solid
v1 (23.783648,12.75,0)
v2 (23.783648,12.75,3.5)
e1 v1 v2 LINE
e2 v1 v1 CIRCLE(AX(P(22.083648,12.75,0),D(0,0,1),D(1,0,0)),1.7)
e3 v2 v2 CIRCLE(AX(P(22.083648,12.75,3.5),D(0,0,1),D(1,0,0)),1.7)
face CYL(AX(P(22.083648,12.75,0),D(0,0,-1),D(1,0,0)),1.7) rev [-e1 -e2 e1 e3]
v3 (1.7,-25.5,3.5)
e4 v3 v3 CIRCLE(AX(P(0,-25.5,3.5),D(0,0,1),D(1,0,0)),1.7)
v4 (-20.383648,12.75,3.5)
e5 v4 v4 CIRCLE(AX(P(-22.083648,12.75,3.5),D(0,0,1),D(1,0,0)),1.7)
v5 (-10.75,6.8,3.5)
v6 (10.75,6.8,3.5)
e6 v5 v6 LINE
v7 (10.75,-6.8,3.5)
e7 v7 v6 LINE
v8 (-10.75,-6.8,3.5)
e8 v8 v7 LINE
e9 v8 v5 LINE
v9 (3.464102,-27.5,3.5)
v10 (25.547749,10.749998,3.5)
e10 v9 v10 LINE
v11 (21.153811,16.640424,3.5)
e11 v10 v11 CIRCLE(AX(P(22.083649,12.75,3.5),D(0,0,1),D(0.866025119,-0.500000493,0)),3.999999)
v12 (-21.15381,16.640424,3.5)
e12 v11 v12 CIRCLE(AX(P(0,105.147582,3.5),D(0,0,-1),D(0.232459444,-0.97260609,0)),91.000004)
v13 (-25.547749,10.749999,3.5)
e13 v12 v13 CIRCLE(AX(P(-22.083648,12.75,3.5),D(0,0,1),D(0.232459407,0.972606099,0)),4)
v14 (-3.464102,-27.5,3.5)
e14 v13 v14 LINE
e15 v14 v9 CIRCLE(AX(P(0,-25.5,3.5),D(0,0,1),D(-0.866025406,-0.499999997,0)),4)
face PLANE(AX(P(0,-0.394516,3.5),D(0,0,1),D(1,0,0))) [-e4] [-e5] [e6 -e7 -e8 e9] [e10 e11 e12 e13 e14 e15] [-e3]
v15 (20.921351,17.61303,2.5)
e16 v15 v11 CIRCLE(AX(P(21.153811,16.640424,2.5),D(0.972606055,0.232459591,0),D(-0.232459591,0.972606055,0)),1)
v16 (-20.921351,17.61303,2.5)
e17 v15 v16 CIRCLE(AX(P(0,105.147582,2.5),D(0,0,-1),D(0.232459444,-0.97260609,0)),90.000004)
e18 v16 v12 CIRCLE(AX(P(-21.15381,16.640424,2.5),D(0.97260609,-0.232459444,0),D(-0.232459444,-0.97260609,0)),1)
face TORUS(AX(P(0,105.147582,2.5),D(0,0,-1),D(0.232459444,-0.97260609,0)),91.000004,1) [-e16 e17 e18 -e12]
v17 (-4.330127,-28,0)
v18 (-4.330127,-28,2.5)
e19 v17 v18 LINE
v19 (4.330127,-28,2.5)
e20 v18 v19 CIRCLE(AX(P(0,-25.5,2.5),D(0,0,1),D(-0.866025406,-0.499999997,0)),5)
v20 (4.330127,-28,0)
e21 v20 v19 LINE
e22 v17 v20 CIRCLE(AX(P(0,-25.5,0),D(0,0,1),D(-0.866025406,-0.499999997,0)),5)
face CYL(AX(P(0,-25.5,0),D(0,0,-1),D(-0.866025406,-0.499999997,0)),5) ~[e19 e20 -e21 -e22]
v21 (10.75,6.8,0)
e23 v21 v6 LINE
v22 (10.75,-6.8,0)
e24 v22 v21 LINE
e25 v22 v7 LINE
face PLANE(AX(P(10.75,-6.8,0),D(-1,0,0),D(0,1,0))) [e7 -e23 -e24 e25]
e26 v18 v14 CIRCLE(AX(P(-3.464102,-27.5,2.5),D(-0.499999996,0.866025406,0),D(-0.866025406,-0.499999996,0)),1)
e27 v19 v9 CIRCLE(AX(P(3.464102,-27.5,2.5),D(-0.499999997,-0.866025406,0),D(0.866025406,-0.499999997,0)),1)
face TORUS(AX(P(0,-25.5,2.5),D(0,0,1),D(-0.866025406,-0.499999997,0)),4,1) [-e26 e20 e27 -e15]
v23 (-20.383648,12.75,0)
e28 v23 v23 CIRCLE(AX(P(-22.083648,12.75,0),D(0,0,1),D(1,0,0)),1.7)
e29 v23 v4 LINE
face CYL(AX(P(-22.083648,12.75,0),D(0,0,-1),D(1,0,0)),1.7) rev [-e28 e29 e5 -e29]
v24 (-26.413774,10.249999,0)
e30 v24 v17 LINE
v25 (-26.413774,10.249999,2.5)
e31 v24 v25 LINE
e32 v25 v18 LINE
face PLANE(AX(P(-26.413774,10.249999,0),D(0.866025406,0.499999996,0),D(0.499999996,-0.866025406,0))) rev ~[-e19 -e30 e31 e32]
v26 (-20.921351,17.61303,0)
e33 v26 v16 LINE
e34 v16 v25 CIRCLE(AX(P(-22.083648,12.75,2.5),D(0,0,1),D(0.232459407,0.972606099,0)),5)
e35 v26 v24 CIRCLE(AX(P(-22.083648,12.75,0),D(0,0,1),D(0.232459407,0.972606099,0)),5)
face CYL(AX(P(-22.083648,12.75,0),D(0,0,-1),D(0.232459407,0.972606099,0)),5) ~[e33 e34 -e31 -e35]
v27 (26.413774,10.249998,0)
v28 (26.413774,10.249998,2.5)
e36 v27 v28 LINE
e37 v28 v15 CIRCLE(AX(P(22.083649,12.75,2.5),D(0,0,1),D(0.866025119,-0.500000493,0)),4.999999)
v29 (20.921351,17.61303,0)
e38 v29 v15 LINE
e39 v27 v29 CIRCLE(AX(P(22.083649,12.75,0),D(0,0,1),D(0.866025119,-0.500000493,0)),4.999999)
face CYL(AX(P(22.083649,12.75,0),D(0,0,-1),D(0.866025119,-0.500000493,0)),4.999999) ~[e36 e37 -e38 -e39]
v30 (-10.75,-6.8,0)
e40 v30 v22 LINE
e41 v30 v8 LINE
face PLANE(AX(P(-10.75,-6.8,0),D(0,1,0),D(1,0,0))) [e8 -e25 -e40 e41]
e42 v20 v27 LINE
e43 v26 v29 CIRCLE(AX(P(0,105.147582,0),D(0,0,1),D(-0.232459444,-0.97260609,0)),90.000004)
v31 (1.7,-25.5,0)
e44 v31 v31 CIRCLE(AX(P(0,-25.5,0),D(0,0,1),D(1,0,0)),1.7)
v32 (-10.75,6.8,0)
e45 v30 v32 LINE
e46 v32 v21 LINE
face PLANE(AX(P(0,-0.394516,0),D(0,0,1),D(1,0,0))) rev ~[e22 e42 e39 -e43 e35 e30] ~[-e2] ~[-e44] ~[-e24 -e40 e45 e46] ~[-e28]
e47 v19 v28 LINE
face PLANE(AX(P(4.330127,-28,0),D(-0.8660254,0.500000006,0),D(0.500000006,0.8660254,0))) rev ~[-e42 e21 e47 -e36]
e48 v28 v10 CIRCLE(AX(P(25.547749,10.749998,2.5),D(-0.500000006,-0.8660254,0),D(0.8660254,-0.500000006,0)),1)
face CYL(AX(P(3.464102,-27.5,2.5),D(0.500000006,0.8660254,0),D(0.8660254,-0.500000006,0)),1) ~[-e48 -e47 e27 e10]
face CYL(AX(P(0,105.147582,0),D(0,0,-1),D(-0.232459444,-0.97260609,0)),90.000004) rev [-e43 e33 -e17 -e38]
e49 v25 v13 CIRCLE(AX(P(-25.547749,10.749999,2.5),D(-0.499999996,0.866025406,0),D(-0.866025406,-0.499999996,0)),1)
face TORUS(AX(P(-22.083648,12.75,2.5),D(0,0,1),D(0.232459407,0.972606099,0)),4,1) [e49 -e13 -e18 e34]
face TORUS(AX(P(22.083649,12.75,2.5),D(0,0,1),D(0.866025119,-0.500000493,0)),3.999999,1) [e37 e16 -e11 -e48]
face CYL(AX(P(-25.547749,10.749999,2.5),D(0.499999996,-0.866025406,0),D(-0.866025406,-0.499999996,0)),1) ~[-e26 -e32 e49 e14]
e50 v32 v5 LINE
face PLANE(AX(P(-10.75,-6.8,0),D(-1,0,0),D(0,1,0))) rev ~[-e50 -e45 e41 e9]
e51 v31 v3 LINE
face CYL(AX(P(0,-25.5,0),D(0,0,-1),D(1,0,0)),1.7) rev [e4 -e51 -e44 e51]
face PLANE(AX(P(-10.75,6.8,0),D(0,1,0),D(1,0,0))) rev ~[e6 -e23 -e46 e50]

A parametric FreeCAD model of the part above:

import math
import FreeCAD as App
import Part
import Sketcher

V = App.Vector
Q = App.Units.Quantity


def edges_at(feature, points):
    """Names of the edges that pass closest to the given points."""
    edges = feature.Shape.Edges
    near = lambda p: min(range(len(edges)), key=lambda i: edges[i].distToShape(Part.Vertex(*p))[0])
    return sorted({f"Edge{near(p) + 1}" for p in points})


def add_polygon(sketch, points):
    """Adds a closed chain of lines whose ends are joined by coincident constraints."""
    first, n = sketch.GeometryCount, len(points)
    for a, b in zip(points, points[1:] + points[:1]):
        sketch.addGeometry(Part.LineSegment(App.Vector(*a, 0), App.Vector(*b, 0)), False)
    for i in range(n):
        sketch.addConstraint(Sketcher.Constraint("Coincident", first + i, 2, first + (i + 1) % n, 1))

doc = App.newDocument("Part")
body = doc.addObject("PartDesign::Body", "Body")

# Sketch on XY plane
sketch1 = body.newObject("Sketcher::SketchObject", "Sketch")
sketch1.AttachmentSupport = (doc.getObject("XY_Plane"), [""])
sketch1.MapMode = "FlatFace"
sketch1.addGeometry(Part.ArcOfCircle(Part.Circle(V(-22.1, 12.7, 0), V(0, 0, 1), 5), math.radians(77), math.radians(210)), False)  # 0
sketch1.addGeometry(Part.LineSegment(V(-26.4, 10.2, 0), V(-4.3, -28, 0)), False)  # 1
sketch1.addGeometry(Part.ArcOfCircle(Part.Circle(V(0, -25.5, 0), V(0, 0, 1), 5), math.radians(-150), math.radians(-30)), False)  # 2
sketch1.addGeometry(Part.LineSegment(V(4.3, -28, 0), V(26.4, 10.2, 0)), False)  # 3
sketch1.addGeometry(Part.ArcOfCircle(Part.Circle(V(22.1, 12.8, 0), V(0, 0, 1), 5), math.radians(-30), math.radians(103)), False)  # 4
sketch1.addGeometry(Part.ArcOfCircle(Part.Circle(V(0, 105.1, 0), V(0, 0, 1), 90), math.radians(-103), math.radians(-77)), False)  # 5
sketch1.addGeometry(Part.Circle(V(0, -25.5, 0), V(0, 0, 1), 1.7), False)  # 6
sketch1.addGeometry(Part.Circle(V(-22.1, 12.8, 0), V(0, 0, 1), 1.7), False)  # 7
add_polygon(sketch1, [(10.8, -6.8), (-10.8, -6.8), (-10.8, 6.8), (10.8, 6.8)])  # lines 8-11
sketch1.addGeometry(Part.Circle(V(22.1, 12.8, 0), V(0, 0, 1), 1.7), False)  # 12
sketch1.addConstraint(Sketcher.Constraint("Tangent", 0, 2, 1, 1))
sketch1.addConstraint(Sketcher.Constraint("Tangent", 1, 2, 2, 1))
sketch1.addConstraint(Sketcher.Constraint("Tangent", 2, 2, 3, 1))
sketch1.addConstraint(Sketcher.Constraint("Tangent", 3, 2, 4, 1))
sketch1.addConstraint(Sketcher.Constraint("Tangent", 4, 2, 5, 2))
sketch1.addConstraint(Sketcher.Constraint("Tangent", 5, 1, 0, 1))
sketch1.addConstraint(Sketcher.Constraint("Horizontal", 8))
sketch1.addConstraint(Sketcher.Constraint("Vertical", 9))
sketch1.addConstraint(Sketcher.Constraint("Horizontal", 10))
sketch1.addConstraint(Sketcher.Constraint("Vertical", 11))
sketch1.addConstraint(Sketcher.Constraint("Coincident", 6, 3, 2, 3))
sketch1.addConstraint(Sketcher.Constraint("Coincident", 7, 3, 0, 3))
sketch1.addConstraint(Sketcher.Constraint("Coincident", 12, 3, 4, 3))
sketch1.addConstraint(Sketcher.Constraint("Equal", 0, 2))
sketch1.addConstraint(Sketcher.Constraint("Equal", 2, 4))
sketch1.addConstraint(Sketcher.Constraint("Equal", 6, 7))
sketch1.addConstraint(Sketcher.Constraint("Equal", 7, 12))
sketch1.addConstraint(Sketcher.Constraint("Symmetric", 8, 2, 10, 2, -1, 1))
sketch1.addConstraint(Sketcher.Constraint("Symmetric", 0, 3, 4, 3, -2))
sketch1.addConstraint(Sketcher.Constraint("PointOnObject", 2, 3, -2))
sketch1.addConstraint(Sketcher.Constraint("Radius", 0, 5.0))
sketch1.addConstraint(Sketcher.Constraint("Diameter", 6, 3.4))
sketch1.addConstraint(Sketcher.Constraint("Angle", 1, Q("-60 deg")))
sketch1.addConstraint(Sketcher.Constraint("DistanceX", 8, 2, 8, 1, 21.5))
sketch1.addConstraint(Sketcher.Constraint("DistanceY", 9, 1, 9, 2, 13.6))
sketch1.addConstraint(Sketcher.Constraint("DistanceY", 1, 2, -1, 1, 28.0))
sketch1.addConstraint(Sketcher.Constraint("DistanceY", -1, 1, 0, 3, 12.75))
sketch1.addConstraint(Sketcher.Constraint("Radius", 5, 90.000004))
pad1 = body.newObject("PartDesign::Pad", "Pad")
pad1.Profile = sketch1
pad1.Length = 3.5
doc.recompute()

fillet = body.newObject("PartDesign::Fillet", "Fillet")
fillet.Base = (pad1, edges_at(pad1, [
    (-15.372, -8.875, 3.5),
    (-26.091, 15.74, 3.5),
    (0, 15.148, 3.5),
    (26.091, 15.74, 3.5),
    (15.372, -8.875, 3.5),
    (0, -30.5, 3.5),
]))
fillet.Radius = 1

doc.recompute()
